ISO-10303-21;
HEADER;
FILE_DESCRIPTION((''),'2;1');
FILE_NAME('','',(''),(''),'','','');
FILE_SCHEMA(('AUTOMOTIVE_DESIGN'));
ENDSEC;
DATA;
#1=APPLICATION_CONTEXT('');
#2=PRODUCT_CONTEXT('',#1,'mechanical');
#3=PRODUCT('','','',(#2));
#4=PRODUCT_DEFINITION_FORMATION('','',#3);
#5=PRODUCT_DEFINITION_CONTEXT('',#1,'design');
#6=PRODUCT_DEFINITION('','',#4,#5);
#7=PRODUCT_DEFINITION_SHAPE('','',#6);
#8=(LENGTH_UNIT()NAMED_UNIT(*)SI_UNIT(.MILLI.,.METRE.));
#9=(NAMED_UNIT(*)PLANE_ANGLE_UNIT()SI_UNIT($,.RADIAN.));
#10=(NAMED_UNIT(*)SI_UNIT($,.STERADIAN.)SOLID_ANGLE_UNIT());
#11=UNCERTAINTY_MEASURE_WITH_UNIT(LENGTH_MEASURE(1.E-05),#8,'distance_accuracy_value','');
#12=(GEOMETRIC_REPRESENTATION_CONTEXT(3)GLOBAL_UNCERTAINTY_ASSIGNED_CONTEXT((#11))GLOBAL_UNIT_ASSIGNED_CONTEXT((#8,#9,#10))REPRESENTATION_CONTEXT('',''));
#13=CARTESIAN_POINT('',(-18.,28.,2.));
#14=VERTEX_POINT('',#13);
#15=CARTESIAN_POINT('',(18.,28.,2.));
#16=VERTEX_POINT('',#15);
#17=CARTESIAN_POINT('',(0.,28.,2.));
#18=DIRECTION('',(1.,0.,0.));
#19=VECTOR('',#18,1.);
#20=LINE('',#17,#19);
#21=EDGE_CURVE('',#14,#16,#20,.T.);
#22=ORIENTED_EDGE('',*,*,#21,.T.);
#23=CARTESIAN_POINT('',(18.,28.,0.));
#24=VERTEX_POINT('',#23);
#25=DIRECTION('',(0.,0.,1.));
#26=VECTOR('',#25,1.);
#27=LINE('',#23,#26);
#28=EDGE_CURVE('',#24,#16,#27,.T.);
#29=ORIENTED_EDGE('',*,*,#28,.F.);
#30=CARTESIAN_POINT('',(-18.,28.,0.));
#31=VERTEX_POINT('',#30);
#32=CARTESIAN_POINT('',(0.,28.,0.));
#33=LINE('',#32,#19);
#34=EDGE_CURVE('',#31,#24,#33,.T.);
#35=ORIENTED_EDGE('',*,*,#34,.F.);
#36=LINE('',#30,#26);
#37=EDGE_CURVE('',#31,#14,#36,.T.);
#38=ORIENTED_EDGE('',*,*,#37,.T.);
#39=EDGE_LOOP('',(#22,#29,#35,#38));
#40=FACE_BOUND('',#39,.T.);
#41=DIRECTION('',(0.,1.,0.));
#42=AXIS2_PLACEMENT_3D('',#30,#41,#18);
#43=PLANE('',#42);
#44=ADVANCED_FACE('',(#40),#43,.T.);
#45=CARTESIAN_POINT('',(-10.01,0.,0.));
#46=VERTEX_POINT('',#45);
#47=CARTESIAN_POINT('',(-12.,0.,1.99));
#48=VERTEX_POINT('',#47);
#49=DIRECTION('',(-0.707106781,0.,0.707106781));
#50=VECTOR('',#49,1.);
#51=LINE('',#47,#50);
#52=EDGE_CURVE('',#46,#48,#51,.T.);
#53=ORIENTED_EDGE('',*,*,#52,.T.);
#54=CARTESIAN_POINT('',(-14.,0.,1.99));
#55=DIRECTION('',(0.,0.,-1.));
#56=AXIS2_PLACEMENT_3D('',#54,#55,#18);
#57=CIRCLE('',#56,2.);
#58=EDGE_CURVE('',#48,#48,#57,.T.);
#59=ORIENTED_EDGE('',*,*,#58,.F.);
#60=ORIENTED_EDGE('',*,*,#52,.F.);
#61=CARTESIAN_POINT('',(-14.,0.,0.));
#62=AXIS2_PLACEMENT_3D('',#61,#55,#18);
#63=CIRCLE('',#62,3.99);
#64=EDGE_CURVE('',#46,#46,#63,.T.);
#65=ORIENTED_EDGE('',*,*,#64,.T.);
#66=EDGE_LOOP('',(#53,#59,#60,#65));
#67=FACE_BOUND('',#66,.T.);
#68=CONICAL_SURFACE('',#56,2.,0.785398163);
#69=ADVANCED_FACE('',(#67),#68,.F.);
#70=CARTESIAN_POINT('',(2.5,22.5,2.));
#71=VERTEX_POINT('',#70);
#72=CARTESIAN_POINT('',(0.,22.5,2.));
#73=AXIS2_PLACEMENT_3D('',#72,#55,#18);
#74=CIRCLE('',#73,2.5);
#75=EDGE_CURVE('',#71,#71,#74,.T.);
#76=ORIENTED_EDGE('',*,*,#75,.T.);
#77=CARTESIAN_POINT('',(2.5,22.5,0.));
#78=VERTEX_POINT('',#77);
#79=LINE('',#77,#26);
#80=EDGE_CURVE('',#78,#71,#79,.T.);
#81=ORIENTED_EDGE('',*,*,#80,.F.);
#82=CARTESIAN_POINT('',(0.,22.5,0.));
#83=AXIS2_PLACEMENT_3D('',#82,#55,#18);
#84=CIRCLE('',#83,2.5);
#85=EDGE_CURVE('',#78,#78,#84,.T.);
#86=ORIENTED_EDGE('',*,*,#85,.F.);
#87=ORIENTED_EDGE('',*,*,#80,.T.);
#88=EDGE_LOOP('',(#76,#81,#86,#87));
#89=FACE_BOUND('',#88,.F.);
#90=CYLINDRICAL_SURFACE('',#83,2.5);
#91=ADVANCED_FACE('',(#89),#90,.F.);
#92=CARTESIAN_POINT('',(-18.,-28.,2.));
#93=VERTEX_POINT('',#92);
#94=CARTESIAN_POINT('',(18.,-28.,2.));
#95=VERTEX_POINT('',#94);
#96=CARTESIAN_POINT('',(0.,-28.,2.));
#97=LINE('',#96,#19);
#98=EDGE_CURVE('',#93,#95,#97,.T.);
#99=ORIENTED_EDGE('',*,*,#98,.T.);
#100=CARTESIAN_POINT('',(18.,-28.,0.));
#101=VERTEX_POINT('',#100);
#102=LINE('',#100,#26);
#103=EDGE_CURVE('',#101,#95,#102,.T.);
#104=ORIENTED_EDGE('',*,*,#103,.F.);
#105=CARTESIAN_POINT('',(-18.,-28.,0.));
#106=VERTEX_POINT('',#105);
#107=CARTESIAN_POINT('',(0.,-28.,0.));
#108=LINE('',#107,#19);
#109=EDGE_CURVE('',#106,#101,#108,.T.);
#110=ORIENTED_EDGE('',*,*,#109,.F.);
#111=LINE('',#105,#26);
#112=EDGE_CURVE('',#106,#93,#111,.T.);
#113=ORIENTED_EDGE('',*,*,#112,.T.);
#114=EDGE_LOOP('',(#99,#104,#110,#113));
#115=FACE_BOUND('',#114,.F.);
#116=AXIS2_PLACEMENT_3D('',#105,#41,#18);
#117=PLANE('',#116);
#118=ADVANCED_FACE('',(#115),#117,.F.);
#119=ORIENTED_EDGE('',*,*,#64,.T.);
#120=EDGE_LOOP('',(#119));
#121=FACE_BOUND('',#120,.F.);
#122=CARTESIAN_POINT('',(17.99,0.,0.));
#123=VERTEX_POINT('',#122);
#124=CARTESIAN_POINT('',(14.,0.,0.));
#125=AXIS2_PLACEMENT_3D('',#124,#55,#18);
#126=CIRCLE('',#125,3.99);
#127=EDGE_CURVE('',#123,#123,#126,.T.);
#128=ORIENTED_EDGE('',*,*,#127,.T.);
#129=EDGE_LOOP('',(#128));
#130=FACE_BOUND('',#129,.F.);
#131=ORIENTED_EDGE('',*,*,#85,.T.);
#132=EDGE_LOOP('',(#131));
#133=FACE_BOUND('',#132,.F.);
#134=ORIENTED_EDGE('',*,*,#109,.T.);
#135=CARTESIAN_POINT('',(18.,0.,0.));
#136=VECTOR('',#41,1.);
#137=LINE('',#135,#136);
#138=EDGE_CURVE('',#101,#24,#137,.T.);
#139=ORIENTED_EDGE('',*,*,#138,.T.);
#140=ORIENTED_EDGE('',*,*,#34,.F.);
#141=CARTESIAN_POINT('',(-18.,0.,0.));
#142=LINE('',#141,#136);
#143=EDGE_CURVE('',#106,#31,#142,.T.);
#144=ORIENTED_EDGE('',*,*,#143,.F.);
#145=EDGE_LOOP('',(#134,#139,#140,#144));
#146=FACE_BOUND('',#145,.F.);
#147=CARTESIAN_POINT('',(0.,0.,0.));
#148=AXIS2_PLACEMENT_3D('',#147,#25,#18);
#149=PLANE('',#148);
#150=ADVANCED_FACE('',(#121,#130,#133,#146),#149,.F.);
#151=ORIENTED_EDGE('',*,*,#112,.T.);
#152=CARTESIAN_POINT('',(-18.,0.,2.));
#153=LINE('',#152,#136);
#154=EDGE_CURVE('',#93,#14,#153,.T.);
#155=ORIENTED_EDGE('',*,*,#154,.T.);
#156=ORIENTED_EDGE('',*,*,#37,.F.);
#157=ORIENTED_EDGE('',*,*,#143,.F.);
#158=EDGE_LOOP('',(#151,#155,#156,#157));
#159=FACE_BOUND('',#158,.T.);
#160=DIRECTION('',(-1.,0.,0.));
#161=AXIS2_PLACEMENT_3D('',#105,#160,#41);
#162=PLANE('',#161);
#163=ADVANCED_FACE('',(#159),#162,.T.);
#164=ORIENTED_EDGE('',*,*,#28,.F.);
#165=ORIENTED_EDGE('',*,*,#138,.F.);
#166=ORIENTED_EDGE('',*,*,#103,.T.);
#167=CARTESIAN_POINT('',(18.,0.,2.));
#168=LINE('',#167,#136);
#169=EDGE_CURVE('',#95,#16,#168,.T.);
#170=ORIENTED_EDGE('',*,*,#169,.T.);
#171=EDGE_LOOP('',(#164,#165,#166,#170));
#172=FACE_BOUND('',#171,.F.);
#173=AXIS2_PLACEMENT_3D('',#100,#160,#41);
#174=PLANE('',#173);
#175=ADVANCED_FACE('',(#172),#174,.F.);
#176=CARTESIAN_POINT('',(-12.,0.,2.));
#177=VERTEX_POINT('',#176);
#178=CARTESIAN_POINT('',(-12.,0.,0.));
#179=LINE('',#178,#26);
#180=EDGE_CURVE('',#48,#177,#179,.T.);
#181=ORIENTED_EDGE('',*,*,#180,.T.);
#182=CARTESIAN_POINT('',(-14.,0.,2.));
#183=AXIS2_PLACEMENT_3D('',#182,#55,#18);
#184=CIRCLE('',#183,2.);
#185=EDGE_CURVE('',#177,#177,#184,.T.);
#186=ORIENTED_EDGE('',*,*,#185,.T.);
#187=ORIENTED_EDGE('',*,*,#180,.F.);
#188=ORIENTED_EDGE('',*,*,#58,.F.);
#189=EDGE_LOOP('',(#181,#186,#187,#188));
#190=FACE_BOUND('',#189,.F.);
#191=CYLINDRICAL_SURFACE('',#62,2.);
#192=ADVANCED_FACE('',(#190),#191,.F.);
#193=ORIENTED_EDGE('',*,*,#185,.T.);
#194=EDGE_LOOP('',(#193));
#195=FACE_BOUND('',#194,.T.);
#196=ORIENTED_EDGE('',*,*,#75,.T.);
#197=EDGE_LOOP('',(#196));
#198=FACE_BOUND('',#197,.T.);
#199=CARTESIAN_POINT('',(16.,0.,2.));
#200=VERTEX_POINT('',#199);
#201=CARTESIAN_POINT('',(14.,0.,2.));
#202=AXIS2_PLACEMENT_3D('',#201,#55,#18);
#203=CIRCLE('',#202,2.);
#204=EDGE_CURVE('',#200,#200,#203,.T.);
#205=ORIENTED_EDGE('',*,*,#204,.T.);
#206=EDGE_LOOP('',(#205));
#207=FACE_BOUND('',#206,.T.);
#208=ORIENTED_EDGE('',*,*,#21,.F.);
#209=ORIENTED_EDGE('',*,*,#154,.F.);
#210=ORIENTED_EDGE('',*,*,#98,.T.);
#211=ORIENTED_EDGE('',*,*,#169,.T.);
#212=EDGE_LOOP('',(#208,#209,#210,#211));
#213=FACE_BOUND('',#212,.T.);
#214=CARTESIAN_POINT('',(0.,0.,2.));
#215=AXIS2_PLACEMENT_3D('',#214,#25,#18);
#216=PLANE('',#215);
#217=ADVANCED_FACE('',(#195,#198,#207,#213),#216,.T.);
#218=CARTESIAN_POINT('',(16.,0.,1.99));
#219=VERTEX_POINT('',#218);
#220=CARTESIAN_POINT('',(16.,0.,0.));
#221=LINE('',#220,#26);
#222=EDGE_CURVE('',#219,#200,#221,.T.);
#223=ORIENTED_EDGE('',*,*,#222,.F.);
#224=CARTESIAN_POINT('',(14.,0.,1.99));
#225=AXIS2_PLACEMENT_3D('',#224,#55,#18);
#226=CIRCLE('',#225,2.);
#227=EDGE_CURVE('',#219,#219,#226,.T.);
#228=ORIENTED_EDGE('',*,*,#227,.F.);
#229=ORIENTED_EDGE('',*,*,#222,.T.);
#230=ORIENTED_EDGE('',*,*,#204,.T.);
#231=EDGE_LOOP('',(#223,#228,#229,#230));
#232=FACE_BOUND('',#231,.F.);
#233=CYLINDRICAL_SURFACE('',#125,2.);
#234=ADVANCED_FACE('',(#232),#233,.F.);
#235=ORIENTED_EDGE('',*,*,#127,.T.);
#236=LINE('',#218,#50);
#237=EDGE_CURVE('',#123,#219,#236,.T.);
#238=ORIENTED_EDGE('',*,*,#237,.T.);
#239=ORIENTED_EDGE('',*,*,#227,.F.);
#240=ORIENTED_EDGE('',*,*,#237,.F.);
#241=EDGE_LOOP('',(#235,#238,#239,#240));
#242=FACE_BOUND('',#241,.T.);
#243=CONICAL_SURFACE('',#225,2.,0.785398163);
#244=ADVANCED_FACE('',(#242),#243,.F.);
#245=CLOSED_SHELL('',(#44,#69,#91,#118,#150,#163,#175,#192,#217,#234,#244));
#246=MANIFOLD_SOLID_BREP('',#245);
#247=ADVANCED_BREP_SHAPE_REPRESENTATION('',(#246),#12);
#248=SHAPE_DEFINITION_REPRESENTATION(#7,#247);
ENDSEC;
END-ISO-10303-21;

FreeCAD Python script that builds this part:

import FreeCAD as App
import Part
import Sketcher

V = App.Vector


def edges_at(feature, points):
    """Names of the edges that pass closest to the given points."""
    edges = feature.Shape.Edges
    near = lambda p: min(range(len(edges)), key=lambda i: edges[i].distToShape(Part.Vertex(*p))[0])
    return sorted({f"Edge{near(p) + 1}" for p in points})


def add_polygon(sketch, points):
    """Adds a closed chain of lines whose ends are joined by coincident constraints."""
    first, n = sketch.GeometryCount, len(points)
    for a, b in zip(points, points[1:] + points[:1]):
        sketch.addGeometry(Part.LineSegment(App.Vector(*a, 0), App.Vector(*b, 0)), False)
    for i in range(n):
        sketch.addConstraint(Sketcher.Constraint("Coincident", first + i, 2, first + (i + 1) % n, 1))

doc = App.newDocument("Part")
params = doc.addObject("Spreadsheet::Sheet", "Params")
for row, (alias, value) in enumerate([
    ("sketch1_width", "36 mm"),
    ("sketch1_height", "56 mm"),
    ("pad1_length", "2 mm"),
    ("sketch2_diameter", "4 mm"),
    ("pocket1_length", "3 mm"),
    ("chamfer_size", "1.99 mm"),
    ("sketch3_diameter", "5 mm"),
    ("pocket2_length", "3 mm"),
], start=1):
    params.set(f"A{row}", alias)
    params.set(f"B{row}", "=" + value)
    params.setAlias(f"B{row}", alias)

body = doc.addObject("PartDesign::Body", "Body")

# Sketch on XY plane
sketch1 = body.newObject("Sketcher::SketchObject", "Sketch")
sketch1.AttachmentSupport = (doc.getObject("XY_Plane"), [""])
sketch1.MapMode = "FlatFace"
add_polygon(sketch1, [(-18, 28), (-18, -28), (18, -28), (18, 28)])  # lines 0-3
sketch1.addConstraint([
    Sketcher.Constraint("Vertical", 0),
    Sketcher.Constraint("Horizontal", 1),
    Sketcher.Constraint("Vertical", 2),
    Sketcher.Constraint("Horizontal", 3),
    Sketcher.Constraint("Symmetric", 0, 2, 2, 2, -1, 1),
    Sketcher.Constraint("DistanceX", 1, 1, 1, 2, 36.0),
    Sketcher.Constraint("DistanceY", 0, 2, 0, 1, 56.0),
])
sketch1.setExpression("Constraints[9]", "Params.sketch1_width")
sketch1.setExpression("Constraints[10]", "Params.sketch1_height")
pad1 = body.newObject("PartDesign::Pad", "Pad")
pad1.Profile = sketch1
pad1.setExpression("Length", "Params.pad1_length")

# Sketch on XY plane
sketch2 = body.newObject("Sketcher::SketchObject", "Sketch001")
sketch2.AttachmentSupport = (doc.getObject("XY_Plane"), [""])
sketch2.MapMode = "FlatFace"
sketch2.addGeometry([
    Part.Circle(V(14, 0, 0), V(0, 0, 1), 2),
    Part.Circle(V(-14, 0, 0), V(0, 0, 1), 2),
], False)
sketch2.addConstraint([
    Sketcher.Constraint("Equal", 0, 1),
    Sketcher.Constraint("Symmetric", 0, 3, 1, 3, -1, 1),
    Sketcher.Constraint("PointOnObject", 0, 3, -1),
    Sketcher.Constraint("Diameter", 0, 4.0),
    Sketcher.Constraint("DistanceX", -1, 1, 0, 3, 14.0),
])
sketch2.setExpression("Constraints[3]", "Params.sketch2_diameter")
pocket1 = body.newObject("PartDesign::Pocket", "Pocket")
pocket1.Profile = sketch2
pocket1.setExpression("Length", "Params.pocket1_length")
pocket1.Reversed = True
doc.recompute()

chamfer = body.newObject("PartDesign::Chamfer", "Chamfer")
chamfer.Base = (pocket1, edges_at(pocket1, [(-16, 0, 0), (12, 0, 0)]))
chamfer.setExpression("Size", "Params.chamfer_size")

# Sketch on XY plane
sketch3 = body.newObject("Sketcher::SketchObject", "Sketch002")
sketch3.AttachmentSupport = (doc.getObject("XY_Plane"), [""])
sketch3.MapMode = "FlatFace"
sketch3.addGeometry(Part.Circle(V(0, 22.5, 0), V(0, 0, 1), 2.5), False)
sketch3.addConstraint([
    Sketcher.Constraint("PointOnObject", 0, 3, -2),
    Sketcher.Constraint("Diameter", 0, 5.0),
    Sketcher.Constraint("DistanceY", -1, 1, 0, 3, 22.5),
])
sketch3.setExpression("Constraints[1]", "Params.sketch3_diameter")
pocket2 = body.newObject("PartDesign::Pocket", "Pocket001")
pocket2.Profile = sketch3
pocket2.setExpression("Length", "Params.pocket2_length")
pocket2.Reversed = True

doc.recompute()
